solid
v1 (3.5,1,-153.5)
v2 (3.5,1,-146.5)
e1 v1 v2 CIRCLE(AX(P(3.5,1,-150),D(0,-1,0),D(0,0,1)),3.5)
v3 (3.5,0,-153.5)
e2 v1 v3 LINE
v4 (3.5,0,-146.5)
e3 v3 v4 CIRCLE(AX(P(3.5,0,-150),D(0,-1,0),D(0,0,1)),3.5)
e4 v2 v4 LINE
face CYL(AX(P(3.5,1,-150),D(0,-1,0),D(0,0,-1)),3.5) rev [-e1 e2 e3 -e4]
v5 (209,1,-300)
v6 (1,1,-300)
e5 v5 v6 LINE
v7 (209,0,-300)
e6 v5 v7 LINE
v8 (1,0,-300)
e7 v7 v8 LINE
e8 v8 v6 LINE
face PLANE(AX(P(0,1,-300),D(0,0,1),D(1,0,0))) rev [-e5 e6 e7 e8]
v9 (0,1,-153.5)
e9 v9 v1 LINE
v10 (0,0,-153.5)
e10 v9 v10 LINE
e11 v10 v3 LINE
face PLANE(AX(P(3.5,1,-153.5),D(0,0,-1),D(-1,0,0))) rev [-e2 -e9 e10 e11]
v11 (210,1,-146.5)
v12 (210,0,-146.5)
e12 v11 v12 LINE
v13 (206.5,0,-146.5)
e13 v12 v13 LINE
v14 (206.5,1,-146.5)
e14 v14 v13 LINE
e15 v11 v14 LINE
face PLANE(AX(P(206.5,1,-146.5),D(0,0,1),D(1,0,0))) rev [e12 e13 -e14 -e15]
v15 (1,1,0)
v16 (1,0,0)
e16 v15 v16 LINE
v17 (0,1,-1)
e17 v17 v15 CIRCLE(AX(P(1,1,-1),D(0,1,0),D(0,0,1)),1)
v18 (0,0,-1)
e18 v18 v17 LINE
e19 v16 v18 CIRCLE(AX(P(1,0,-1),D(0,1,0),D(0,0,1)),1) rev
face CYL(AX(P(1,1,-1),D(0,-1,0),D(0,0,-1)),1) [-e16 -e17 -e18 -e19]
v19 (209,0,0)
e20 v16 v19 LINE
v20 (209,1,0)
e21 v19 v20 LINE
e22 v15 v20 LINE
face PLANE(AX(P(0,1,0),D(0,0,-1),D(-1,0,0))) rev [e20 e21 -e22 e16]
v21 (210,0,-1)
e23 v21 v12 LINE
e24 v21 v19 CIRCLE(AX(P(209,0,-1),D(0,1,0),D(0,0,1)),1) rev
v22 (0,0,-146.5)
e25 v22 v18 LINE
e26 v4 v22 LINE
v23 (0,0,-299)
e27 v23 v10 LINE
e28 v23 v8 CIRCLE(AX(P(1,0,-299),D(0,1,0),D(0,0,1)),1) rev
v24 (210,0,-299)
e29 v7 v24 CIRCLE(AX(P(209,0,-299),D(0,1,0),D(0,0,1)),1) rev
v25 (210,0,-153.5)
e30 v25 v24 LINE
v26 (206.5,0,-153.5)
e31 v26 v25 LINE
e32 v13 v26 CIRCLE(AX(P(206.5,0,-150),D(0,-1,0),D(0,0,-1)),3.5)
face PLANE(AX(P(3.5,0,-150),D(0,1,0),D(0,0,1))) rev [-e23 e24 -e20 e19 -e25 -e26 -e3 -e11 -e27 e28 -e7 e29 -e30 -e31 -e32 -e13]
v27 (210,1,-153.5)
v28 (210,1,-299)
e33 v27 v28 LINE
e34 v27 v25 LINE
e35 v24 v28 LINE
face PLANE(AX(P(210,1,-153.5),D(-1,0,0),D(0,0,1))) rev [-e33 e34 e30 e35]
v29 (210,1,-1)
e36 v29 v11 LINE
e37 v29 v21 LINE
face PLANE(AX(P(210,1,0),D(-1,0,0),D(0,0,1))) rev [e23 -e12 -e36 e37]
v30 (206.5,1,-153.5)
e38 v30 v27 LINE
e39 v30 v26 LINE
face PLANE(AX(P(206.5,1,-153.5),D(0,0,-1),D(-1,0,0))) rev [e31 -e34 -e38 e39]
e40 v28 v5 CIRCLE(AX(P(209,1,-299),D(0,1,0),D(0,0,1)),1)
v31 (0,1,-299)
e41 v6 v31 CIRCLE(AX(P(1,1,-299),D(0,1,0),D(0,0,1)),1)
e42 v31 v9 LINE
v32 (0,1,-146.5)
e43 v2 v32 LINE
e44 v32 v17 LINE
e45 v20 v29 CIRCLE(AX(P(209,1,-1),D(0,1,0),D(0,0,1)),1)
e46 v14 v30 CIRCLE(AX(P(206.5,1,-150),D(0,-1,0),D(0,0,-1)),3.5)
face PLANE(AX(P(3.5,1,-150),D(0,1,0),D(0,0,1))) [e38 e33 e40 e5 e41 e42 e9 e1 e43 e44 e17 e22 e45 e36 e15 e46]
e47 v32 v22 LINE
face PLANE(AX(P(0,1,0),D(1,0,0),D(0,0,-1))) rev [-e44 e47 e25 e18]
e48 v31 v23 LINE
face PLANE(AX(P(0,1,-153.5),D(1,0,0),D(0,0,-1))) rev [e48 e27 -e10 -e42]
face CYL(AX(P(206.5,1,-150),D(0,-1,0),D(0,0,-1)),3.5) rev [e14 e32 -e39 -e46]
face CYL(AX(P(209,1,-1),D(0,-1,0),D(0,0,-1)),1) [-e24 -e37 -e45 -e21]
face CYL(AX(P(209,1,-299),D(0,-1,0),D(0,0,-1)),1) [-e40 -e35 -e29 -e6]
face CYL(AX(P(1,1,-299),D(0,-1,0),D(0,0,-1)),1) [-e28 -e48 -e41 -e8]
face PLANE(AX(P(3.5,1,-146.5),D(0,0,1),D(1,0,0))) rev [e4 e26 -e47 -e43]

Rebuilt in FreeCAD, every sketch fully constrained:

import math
import FreeCAD as App
import Part
import Sketcher


def edges_at(feature, points):
    """Names of the edges that pass closest to the given points."""
    edges = feature.Shape.Edges
    near = lambda p: min(range(len(edges)), key=lambda i: edges[i].distToShape(Part.Vertex(*p))[0])
    return sorted({f"Edge{near(p) + 1}" for p in points})

doc = App.newDocument("Part")
body = doc.addObject("PartDesign::Body", "Body")

# Sketch on XZ plane
sketch1 = doc.addObject("Sketcher::SketchObject", "Sketch")
body.addObject(sketch1)
sketch1.AttachmentSupport = (doc.XZ_Plane, [""])
sketch1.MapMode = "FlatFace"
sketch1.addGeometry(Part.LineSegment(App.Vector(0, 0, 0), App.Vector(210, 0, 0)), False)
sketch1.addGeometry(Part.LineSegment(App.Vector(210, 0, 0), App.Vector(210, -146.5, 0)), False)
sketch1.addGeometry(Part.LineSegment(App.Vector(210, -146.5, 0), App.Vector(206.5, -146.5, 0)), False)
sketch1.addGeometry(Part.ArcOfCircle(Part.Circle(App.Vector(206.5, -150, 0), App.Vector(0, 0, 1), 3.5), math.radians(90), math.radians(270)), False)
sketch1.addGeometry(Part.LineSegment(App.Vector(206.5, -153.5, 0), App.Vector(210, -153.5, 0)), False)
sketch1.addGeometry(Part.LineSegment(App.Vector(210, -153.5, 0), App.Vector(210, -300, 0)), False)
sketch1.addGeometry(Part.LineSegment(App.Vector(210, -300, 0), App.Vector(0, -300, 0)), False)
sketch1.addGeometry(Part.LineSegment(App.Vector(0, -300, 0), App.Vector(0, -153.5, 0)), False)
sketch1.addGeometry(Part.LineSegment(App.Vector(0, -153.5, 0), App.Vector(3.5, -153.5, 0)), False)
sketch1.addGeometry(Part.ArcOfCircle(Part.Circle(App.Vector(3.5, -150, 0), App.Vector(0, 0, 1), 3.5), math.radians(-90), math.radians(90)), False)
sketch1.addGeometry(Part.LineSegment(App.Vector(3.5, -146.5, 0), App.Vector(0, -146.5, 0)), False)
sketch1.addGeometry(Part.LineSegment(App.Vector(0, -146.5, 0), App.Vector(0, 0, 0)), False)
sketch1.addConstraint(Sketcher.Constraint("Coincident", 0, 2, 1, 1))
sketch1.addConstraint(Sketcher.Constraint("Coincident", 1, 2, 2, 1))
sketch1.addConstraint(Sketcher.Constraint("Tangent", 2, 2, 3, 1))
sketch1.addConstraint(Sketcher.Constraint("Tangent", 3, 2, 4, 1))
sketch1.addConstraint(Sketcher.Constraint("Coincident", 4, 2, 5, 1))
sketch1.addConstraint(Sketcher.Constraint("Coincident", 5, 2, 6, 1))
sketch1.addConstraint(Sketcher.Constraint("Coincident", 6, 2, 7, 1))
sketch1.addConstraint(Sketcher.Constraint("Coincident", 7, 2, 8, 1))
sketch1.addConstraint(Sketcher.Constraint("Tangent", 8, 2, 9, 1))
sketch1.addConstraint(Sketcher.Constraint("Tangent", 9, 2, 10, 1))
sketch1.addConstraint(Sketcher.Constraint("Coincident", 10, 2, 11, 1))
sketch1.addConstraint(Sketcher.Constraint("Coincident", 11, 2, 0, 1))
sketch1.addConstraint(Sketcher.Constraint("Horizontal", 0))
sketch1.addConstraint(Sketcher.Constraint("Vertical", 1))
sketch1.addConstraint(Sketcher.Constraint("Horizontal", 2))
sketch1.addConstraint(Sketcher.Constraint("Horizontal", 4))
sketch1.addConstraint(Sketcher.Constraint("Vertical", 5))
sketch1.addConstraint(Sketcher.Constraint("Horizontal", 6))
sketch1.addConstraint(Sketcher.Constraint("Vertical", 7))
sketch1.addConstraint(Sketcher.Constraint("Horizontal", 8))
sketch1.addConstraint(Sketcher.Constraint("Horizontal", 10))
sketch1.addConstraint(Sketcher.Constraint("Vertical", 11))
sketch1.addConstraint(Sketcher.Constraint("Coincident", 11, 2, -1, 1))
sketch1.addConstraint(Sketcher.Constraint("Equal", 3, 9))
sketch1.addConstraint(Sketcher.Constraint("PointOnObject", 6, 2, -2))
sketch1.addConstraint(Sketcher.Constraint("Horizontal", 3, 3, 9, 3))
sketch1.addConstraint(Sketcher.Constraint("Vertical", 1, 2, 4, 2))
sketch1.addConstraint(Sketcher.Constraint("Equal", 4, 8))
sketch1.addConstraint(Sketcher.Constraint("Equal", 1, 5))
sketch1.addConstraint(Sketcher.Constraint("Radius", 3, 3.5))
sketch1.addConstraint(Sketcher.Constraint("DistanceX", 0, 1, 0, 2, 210.0))
sketch1.addConstraint(Sketcher.Constraint("DistanceX", 2, 2, 2, 1, 3.5))
sketch1.addConstraint(Sketcher.Constraint("DistanceY", 1, 2, 1, 1, 146.5))
pad1 = doc.addObject("PartDesign::Pad", "Pad")
body.addObject(pad1)
pad1.Profile = sketch1
pad1.Length = 1
pad1.Reversed = True
doc.recompute()

fillet = doc.addObject("PartDesign::Fillet", "Fillet")
body.addObject(fillet)
fillet.Base = (pad1, edges_at(pad1, [
    (0, 0.5, -300),
    (210, 0.5, -300),
    (210, 0.5, 0),
    (0, 0.5, 0),
]))
fillet.Radius = 1

doc.recompute()
